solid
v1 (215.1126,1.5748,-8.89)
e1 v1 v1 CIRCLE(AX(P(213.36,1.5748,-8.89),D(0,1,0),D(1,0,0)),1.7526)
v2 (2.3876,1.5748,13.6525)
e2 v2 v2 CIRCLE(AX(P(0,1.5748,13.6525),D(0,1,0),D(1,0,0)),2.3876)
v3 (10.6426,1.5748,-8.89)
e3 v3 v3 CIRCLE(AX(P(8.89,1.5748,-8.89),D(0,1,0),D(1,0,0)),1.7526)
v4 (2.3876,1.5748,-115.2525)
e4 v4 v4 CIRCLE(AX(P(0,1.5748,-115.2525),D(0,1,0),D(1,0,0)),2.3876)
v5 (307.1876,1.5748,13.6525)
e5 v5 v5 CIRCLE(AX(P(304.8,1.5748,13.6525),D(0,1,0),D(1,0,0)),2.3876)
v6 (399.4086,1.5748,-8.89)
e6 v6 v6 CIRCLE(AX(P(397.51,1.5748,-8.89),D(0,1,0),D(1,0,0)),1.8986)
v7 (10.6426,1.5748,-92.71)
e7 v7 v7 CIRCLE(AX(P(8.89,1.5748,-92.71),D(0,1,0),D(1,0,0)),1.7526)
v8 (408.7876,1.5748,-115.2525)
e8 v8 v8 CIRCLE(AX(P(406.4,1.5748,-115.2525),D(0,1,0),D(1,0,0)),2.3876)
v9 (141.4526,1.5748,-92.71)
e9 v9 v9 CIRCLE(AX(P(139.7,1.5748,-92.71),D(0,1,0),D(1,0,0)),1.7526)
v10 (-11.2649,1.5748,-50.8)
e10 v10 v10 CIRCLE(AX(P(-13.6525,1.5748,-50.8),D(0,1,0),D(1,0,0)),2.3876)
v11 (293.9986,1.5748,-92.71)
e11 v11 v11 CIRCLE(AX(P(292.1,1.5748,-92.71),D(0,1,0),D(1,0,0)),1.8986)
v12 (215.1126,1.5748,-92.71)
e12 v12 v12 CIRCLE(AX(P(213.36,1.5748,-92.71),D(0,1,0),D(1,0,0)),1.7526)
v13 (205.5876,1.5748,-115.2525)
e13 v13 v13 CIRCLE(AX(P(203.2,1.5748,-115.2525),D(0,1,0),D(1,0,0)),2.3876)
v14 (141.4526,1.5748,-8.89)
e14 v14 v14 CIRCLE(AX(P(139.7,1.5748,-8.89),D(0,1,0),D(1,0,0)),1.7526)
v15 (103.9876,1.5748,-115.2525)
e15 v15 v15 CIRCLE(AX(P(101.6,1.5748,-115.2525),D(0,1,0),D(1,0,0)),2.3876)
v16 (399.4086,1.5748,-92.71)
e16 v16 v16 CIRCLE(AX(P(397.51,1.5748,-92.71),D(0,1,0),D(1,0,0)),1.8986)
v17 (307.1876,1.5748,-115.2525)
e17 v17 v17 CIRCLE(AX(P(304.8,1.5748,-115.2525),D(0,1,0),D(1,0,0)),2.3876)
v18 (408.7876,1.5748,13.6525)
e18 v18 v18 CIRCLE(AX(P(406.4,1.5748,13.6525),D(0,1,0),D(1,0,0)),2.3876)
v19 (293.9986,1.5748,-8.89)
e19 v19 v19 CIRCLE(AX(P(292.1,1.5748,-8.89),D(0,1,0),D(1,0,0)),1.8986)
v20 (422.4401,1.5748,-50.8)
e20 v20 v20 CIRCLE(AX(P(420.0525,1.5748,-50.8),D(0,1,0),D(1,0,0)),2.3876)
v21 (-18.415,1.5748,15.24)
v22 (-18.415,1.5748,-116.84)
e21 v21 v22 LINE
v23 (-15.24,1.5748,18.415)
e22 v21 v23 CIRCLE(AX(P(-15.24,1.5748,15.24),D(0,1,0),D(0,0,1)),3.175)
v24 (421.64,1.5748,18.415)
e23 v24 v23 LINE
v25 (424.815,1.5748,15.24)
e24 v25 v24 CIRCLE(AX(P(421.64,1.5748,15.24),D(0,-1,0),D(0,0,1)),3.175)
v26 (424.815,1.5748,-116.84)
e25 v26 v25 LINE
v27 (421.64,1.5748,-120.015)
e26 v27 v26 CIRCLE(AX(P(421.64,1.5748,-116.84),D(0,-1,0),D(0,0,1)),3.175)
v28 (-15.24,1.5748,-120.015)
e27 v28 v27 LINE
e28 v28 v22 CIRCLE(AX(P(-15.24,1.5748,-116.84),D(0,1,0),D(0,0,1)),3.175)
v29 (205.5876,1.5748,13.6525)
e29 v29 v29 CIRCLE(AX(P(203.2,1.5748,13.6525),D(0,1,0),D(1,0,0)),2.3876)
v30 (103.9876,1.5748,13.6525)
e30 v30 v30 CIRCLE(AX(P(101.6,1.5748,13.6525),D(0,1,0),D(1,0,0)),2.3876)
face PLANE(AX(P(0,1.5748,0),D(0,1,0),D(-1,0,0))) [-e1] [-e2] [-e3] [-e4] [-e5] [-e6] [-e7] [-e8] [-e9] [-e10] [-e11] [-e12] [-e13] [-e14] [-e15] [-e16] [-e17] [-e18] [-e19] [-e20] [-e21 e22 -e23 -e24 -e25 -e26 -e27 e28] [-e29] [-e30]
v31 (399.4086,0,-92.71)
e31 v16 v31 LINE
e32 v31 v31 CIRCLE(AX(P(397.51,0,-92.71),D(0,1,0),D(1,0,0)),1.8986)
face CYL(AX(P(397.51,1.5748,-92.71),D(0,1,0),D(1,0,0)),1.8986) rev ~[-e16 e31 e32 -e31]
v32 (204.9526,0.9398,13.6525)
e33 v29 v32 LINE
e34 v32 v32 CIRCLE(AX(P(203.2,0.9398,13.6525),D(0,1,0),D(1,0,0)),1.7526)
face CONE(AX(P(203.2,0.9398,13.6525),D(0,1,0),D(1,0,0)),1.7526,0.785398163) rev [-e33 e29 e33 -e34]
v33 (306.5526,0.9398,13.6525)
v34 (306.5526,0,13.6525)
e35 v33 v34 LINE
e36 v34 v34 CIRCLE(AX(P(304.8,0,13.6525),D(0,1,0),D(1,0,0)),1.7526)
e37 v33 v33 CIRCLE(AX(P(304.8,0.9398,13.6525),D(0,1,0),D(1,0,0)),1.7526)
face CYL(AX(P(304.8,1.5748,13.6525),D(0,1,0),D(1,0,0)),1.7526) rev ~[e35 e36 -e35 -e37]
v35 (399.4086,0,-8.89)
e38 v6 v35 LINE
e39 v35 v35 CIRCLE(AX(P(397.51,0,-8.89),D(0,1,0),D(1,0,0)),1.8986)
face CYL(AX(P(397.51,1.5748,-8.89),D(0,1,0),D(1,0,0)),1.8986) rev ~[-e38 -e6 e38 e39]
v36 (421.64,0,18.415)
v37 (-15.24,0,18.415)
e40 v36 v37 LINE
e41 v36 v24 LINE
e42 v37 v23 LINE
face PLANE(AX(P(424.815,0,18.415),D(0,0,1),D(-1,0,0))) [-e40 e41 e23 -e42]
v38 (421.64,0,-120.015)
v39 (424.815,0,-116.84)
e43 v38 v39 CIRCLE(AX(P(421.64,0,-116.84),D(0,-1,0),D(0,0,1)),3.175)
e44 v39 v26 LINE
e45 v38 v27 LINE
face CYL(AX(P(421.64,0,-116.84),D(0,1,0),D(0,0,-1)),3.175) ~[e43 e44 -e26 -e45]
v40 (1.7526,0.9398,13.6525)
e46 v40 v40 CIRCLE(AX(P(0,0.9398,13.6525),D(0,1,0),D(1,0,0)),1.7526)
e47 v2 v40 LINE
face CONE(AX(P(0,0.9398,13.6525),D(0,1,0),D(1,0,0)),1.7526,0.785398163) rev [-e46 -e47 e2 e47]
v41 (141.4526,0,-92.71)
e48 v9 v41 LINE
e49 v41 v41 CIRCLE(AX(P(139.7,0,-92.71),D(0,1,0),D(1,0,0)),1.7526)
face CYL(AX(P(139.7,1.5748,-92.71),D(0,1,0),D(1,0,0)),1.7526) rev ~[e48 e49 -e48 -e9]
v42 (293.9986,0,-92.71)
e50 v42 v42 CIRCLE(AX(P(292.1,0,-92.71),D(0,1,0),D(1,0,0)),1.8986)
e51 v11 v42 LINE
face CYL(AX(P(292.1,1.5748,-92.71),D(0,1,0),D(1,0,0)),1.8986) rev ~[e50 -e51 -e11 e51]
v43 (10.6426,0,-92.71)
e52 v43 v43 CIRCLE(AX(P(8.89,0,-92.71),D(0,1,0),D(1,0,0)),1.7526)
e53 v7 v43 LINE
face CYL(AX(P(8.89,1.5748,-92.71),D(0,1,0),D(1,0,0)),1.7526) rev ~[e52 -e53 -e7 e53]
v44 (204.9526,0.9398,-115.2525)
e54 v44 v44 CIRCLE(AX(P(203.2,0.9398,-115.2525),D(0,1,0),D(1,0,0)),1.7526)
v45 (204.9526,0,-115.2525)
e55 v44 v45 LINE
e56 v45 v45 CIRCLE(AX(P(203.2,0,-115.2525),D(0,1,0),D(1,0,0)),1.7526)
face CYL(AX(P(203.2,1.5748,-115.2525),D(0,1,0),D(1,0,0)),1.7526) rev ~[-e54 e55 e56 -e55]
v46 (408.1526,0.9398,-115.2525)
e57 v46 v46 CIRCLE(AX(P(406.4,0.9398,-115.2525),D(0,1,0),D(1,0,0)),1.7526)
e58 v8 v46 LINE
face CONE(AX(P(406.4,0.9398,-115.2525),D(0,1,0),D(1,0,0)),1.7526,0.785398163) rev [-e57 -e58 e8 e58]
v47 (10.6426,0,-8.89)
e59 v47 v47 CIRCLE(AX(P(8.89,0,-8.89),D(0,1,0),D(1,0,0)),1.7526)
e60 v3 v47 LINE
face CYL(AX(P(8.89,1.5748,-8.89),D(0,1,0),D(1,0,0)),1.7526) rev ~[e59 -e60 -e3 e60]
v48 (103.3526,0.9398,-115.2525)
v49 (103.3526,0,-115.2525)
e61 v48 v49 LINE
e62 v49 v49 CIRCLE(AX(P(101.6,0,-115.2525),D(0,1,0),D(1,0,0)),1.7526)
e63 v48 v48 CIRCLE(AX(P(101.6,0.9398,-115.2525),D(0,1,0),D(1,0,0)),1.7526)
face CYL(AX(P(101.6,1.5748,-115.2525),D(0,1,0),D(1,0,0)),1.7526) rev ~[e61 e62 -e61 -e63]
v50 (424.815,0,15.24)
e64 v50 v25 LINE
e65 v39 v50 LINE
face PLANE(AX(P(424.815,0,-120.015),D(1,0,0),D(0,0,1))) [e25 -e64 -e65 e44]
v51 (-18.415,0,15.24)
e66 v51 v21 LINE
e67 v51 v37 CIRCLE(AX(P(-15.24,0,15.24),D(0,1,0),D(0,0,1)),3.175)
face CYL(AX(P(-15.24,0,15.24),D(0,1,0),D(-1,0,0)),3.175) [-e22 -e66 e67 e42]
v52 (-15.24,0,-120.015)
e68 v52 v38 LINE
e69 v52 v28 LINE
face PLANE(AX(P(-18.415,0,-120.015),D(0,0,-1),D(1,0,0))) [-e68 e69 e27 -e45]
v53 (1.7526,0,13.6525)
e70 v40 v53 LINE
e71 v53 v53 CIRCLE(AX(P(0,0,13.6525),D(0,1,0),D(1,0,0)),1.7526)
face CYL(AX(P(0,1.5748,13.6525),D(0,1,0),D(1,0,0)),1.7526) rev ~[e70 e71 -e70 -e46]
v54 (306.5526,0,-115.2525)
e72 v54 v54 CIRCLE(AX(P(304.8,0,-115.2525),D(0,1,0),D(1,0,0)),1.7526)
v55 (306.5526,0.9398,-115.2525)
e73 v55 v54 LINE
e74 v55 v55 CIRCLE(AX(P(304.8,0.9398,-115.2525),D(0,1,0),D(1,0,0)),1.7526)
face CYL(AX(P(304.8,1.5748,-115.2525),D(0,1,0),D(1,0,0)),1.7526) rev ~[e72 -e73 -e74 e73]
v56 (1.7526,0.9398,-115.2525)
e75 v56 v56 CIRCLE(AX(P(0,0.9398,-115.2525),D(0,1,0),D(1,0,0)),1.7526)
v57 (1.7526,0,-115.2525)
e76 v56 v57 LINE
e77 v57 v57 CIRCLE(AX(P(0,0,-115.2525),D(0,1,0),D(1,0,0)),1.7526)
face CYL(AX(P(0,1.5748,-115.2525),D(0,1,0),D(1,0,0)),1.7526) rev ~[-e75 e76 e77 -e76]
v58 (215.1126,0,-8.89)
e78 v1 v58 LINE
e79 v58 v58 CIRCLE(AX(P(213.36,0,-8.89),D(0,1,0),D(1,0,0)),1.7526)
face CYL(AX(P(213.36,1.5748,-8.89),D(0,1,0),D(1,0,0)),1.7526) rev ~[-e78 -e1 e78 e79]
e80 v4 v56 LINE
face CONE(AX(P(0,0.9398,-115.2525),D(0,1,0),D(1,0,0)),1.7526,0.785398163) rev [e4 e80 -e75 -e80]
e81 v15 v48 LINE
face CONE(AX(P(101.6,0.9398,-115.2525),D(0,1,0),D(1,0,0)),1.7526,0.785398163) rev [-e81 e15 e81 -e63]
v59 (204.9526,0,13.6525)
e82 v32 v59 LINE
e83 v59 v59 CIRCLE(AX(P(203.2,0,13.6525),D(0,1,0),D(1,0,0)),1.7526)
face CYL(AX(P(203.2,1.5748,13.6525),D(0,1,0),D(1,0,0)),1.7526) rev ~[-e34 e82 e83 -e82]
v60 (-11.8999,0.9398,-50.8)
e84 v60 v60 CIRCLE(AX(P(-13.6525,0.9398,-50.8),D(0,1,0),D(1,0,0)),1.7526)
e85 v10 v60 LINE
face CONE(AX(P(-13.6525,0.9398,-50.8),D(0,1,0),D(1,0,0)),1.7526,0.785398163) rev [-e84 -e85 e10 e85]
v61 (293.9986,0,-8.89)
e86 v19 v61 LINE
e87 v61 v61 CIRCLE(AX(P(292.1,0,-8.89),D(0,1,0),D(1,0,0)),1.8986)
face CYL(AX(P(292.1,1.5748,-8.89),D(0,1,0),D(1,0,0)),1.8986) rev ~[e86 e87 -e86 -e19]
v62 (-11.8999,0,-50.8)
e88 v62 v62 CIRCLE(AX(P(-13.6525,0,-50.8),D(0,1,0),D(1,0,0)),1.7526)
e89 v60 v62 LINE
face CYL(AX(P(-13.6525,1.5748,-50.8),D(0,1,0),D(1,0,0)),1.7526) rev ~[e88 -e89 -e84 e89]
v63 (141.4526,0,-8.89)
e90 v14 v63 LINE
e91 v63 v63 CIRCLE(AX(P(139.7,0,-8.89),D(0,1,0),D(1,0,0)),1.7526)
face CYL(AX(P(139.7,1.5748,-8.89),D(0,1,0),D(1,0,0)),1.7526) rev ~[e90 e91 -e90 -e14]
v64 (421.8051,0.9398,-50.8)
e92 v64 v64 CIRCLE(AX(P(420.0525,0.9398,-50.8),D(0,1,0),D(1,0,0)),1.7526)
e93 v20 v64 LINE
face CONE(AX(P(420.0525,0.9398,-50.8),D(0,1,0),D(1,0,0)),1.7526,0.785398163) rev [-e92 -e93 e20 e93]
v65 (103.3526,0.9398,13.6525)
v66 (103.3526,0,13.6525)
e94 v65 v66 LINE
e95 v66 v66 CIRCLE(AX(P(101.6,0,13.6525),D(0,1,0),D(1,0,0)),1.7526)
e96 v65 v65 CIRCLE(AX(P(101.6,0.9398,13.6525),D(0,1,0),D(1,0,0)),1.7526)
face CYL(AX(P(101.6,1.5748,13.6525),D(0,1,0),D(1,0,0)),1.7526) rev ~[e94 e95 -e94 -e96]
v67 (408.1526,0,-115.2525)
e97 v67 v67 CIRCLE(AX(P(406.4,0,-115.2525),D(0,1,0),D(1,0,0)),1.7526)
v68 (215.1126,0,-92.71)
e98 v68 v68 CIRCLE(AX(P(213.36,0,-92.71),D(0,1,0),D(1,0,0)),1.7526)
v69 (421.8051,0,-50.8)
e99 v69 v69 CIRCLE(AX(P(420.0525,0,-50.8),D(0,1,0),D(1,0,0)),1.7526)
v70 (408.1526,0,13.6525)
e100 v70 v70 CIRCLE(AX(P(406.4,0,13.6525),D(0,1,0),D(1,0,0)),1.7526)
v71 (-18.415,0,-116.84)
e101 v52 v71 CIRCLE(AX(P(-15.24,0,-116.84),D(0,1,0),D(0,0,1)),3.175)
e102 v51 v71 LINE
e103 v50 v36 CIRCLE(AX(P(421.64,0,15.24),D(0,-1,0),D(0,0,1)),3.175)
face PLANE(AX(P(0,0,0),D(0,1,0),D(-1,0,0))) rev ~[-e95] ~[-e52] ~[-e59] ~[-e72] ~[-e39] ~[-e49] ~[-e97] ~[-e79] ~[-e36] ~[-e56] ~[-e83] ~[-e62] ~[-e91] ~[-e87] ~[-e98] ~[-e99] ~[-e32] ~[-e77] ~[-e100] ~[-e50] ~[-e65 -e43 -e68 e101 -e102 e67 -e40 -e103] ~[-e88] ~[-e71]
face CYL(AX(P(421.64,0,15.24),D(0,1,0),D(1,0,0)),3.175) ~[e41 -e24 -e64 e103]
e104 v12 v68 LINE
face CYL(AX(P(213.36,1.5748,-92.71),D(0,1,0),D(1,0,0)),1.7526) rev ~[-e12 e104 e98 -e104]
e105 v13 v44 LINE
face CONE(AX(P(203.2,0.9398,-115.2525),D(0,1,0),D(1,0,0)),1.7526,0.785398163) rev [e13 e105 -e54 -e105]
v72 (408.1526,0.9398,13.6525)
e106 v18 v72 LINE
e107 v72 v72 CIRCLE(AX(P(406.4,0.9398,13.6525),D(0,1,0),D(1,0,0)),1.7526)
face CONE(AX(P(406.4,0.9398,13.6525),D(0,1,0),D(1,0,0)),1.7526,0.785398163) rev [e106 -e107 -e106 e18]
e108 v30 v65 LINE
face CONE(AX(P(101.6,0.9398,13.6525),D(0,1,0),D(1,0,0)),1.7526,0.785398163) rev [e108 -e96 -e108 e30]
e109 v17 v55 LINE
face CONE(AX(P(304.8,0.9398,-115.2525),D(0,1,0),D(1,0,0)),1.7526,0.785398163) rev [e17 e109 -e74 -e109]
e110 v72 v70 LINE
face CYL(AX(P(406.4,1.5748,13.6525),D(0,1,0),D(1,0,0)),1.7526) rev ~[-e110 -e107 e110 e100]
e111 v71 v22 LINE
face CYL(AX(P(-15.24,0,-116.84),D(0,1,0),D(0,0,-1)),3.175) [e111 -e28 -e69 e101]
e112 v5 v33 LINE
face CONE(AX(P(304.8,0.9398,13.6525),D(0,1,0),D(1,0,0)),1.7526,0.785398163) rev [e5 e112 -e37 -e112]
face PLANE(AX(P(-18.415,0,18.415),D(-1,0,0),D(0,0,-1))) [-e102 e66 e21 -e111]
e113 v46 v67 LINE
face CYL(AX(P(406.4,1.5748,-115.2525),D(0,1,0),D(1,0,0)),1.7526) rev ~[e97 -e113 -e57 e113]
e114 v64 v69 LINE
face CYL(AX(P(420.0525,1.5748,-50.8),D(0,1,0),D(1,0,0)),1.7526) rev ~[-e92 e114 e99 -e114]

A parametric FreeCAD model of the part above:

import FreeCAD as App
import Part
import Sketcher

V = App.Vector
Q = App.Units.Quantity


def edges_at(feature, points):
    """Names of the edges that pass closest to the given points."""
    edges = feature.Shape.Edges
    near = lambda p: min(range(len(edges)), key=lambda i: edges[i].distToShape(Part.Vertex(*p))[0])
    return sorted({f"Edge{near(p) + 1}" for p in points})

doc = App.newDocument("Part")
body = doc.addObject("PartDesign::Body", "Body")

# Sketch on XZ plane
sketch1 = body.newObject("Sketcher::SketchObject", "Sketch")
sketch1.AttachmentSupport = (doc.getObject("XZ_Plane"), [""])
sketch1.MapMode = "FlatFace"
sketch1.addGeometry([
    Part.LineSegment(V(424.815, -120.015, 0), V(-18.415, -120.015, 0)),
    Part.LineSegment(V(-18.415, -120.015, 0), V(-18.415, 18.415, 0)),
    Part.LineSegment(V(-18.415, 18.415, 0), V(424.815, 18.415, 0)),
    Part.LineSegment(V(424.815, 18.415, 0), V(424.815, -120.015, 0)),
], False)
sketch1.addConstraint([
    Sketcher.Constraint("Coincident", 0, 2, 1, 1),
    Sketcher.Constraint("Coincident", 1, 2, 2, 1),
    Sketcher.Constraint("Coincident", 2, 2, 3, 1),
    Sketcher.Constraint("Coincident", 3, 2, 0, 1),
    Sketcher.Constraint("Horizontal", 0),
    Sketcher.Constraint("Vertical", 1),
    Sketcher.Constraint("Horizontal", 2),
    Sketcher.Constraint("Vertical", 3),
    Sketcher.Constraint("DistanceX", 0, 2, 0, 1, Q("17.45 in")),
    Sketcher.Constraint("DistanceY", 1, 1, 1, 2, Q("5.45 in")),
    Sketcher.Constraint("DistanceX", 0, 2, -1, 1, Q("0.725 in")),
    Sketcher.Constraint("DistanceY", 0, 2, -1, 1, Q("4.725 in")),
])
pad1 = body.newObject("PartDesign::Pad", "Pad")
pad1.Profile = sketch1
pad1.Length = Q("0.062 in")
pad1.Reversed = True

# Sketch on XZ plane
sketch2 = body.newObject("Sketcher::SketchObject", "Sketch001")
sketch2.AttachmentSupport = (doc.getObject("XZ_Plane"), [""])
sketch2.MapMode = "FlatFace"
sketch2.AttachmentOffset = App.Placement(V(0, 0, -0.062 * 25.4), App.Rotation())
sketch2.addGeometry([
    Part.Circle(V(8.89, -8.89, 0), V(0, 0, 1), 1.7526),  # 0
    Part.Circle(V(8.89, -92.71, 0), V(0, 0, 1), 1.7526),  # 1
    Part.Circle(V(139.7, -8.89, 0), V(0, 0, 1), 1.7526),  # 2
    Part.Circle(V(139.7, -92.71, 0), V(0, 0, 1), 1.7526),  # 3
    Part.Circle(V(213.36, -92.71, 0), V(0, 0, 1), 1.7526),  # 4
    Part.Circle(V(213.36, -8.89, 0), V(0, 0, 1), 1.7526),  # 5
    Part.Circle(V(292.1, -8.89, 0), V(0, 0, 1), 1.8986),  # 6
    Part.Circle(V(292.1, -92.71, 0), V(0, 0, 1), 1.8986),  # 7
    Part.Circle(V(397.51, -92.71, 0), V(0, 0, 1), 1.8986),  # 8
    Part.Circle(V(397.51, -8.89, 0), V(0, 0, 1), 1.8986),  # 9
], False)
sketch2.addConstraint([
    Sketcher.Constraint("Equal", 0, 1),
    Sketcher.Constraint("Equal", 1, 2),
    Sketcher.Constraint("Equal", 2, 3),
    Sketcher.Constraint("Equal", 3, 4),
    Sketcher.Constraint("Equal", 4, 5),
    Sketcher.Constraint("Equal", 6, 7),
    Sketcher.Constraint("Equal", 7, 8),
    Sketcher.Constraint("Equal", 8, 9),
    Sketcher.Constraint("Horizontal", 0, 3, 2, 3),
    Sketcher.Constraint("Horizontal", 1, 3, 3, 3),
    Sketcher.Constraint("Horizontal", 3, 3, 4, 3),
    Sketcher.Constraint("Horizontal", 2, 3, 5, 3),
    Sketcher.Constraint("Horizontal", 5, 3, 6, 3),
    Sketcher.Constraint("Horizontal", 4, 3, 7, 3),
    Sketcher.Constraint("Horizontal", 7, 3, 8, 3),
    Sketcher.Constraint("Horizontal", 6, 3, 9, 3),
    Sketcher.Constraint("Vertical", 0, 3, 1, 3),
    Sketcher.Constraint("Vertical", 2, 3, 3, 3),
    Sketcher.Constraint("Vertical", 4, 3, 5, 3),
    Sketcher.Constraint("Vertical", 6, 3, 7, 3),
    Sketcher.Constraint("Vertical", 8, 3, 9, 3),
    Sketcher.Constraint("Diameter", 0, Q("0.138 in")),
    Sketcher.Constraint("DistanceX", 2, 3, 6, 3, Q("6 in")),
    Sketcher.Constraint("Diameter", 6, Q("0.1495 in")),
    Sketcher.Constraint("DistanceX", -1, 1, 2, 3, Q("5.5 in")),
    Sketcher.Constraint("DistanceX", -1, 1, 4, 3, Q("8.4 in")),
    Sketcher.Constraint("DistanceY", 1, 3, 0, 3, Q("3.3 in")),
    Sketcher.Constraint("DistanceX", -1, 1, 0, 3, Q("0.35 in")),
    Sketcher.Constraint("DistanceY", 0, 3, -1, 1, Q("0.35 in")),
    Sketcher.Constraint("DistanceX", -1, 1, 8, 3, Q("15.65 in")),
])
pocket1 = body.newObject("PartDesign::Pocket", "Pocket")
pocket1.Profile = sketch2
pocket1.Length = Q("0.062 in")
pocket1.Reversed = True

# Sketch on XZ plane
sketch3 = body.newObject("Sketcher::SketchObject", "Sketch002")
sketch3.AttachmentSupport = (doc.getObject("XZ_Plane"), [""])
sketch3.MapMode = "FlatFace"
sketch3.AttachmentOffset = App.Placement(V(0, 0, -0.062 * 25.4), App.Rotation())
sketch3.addGeometry([
    Part.Circle(V(-13.6525, -50.8, 0), V(0, 0, 1), 1.7526),  # 0
    Part.Circle(V(420.0525, -50.8, 0), V(0, 0, 1), 1.7526),  # 1
    Part.Circle(V(0, 13.6525, 0), V(0, 0, 1), 1.7526),  # 2
    Part.Circle(V(101.6, 13.6525, 0), V(0, 0, 1), 1.7526),  # 3
    Part.Circle(V(203.2, 13.6525, 0), V(0, 0, 1), 1.7526),  # 4
    Part.Circle(V(304.8, 13.6525, 0), V(0, 0, 1), 1.7526),  # 5
    Part.Circle(V(406.4, 13.6525, 0), V(0, 0, 1), 1.7526),  # 6
    Part.Circle(V(0, -115.2525, 0), V(0, 0, 1), 1.7526),  # 7
    Part.Circle(V(101.6, -115.2525, 0), V(0, 0, 1), 1.7526),  # 8
    Part.Circle(V(203.2, -115.2525, 0), V(0, 0, 1), 1.7526),  # 9
    Part.Circle(V(304.8, -115.2525, 0), V(0, 0, 1), 1.7526),  # 10
    Part.Circle(V(406.4, -115.2525, 0), V(0, 0, 1), 1.7526),  # 11
], False)
sketch3.addConstraint([
    Sketcher.Constraint("Equal", 0, 1),
    Sketcher.Constraint("Equal", 1, 2),
    Sketcher.Constraint("Equal", 2, 3),
    Sketcher.Constraint("Equal", 3, 4),
    Sketcher.Constraint("Equal", 4, 5),
    Sketcher.Constraint("Equal", 5, 6),
    Sketcher.Constraint("Equal", 6, 7),
    Sketcher.Constraint("Equal", 7, 8),
    Sketcher.Constraint("Equal", 8, 9),
    Sketcher.Constraint("Equal", 9, 10),
    Sketcher.Constraint("Equal", 10, 11),
    Sketcher.Constraint("PointOnObject", 2, 3, -2),
    Sketcher.Constraint("PointOnObject", 7, 3, -2),
    Sketcher.Constraint("Horizontal", 0, 3, 1, 3),
    Sketcher.Constraint("Horizontal", 2, 3, 3, 3),
    Sketcher.Constraint("Horizontal", 3, 3, 4, 3),
    Sketcher.Constraint("Horizontal", 4, 3, 5, 3),
    Sketcher.Constraint("Horizontal", 5, 3, 6, 3),
    Sketcher.Constraint("Horizontal", 7, 3, 8, 3),
    Sketcher.Constraint("Horizontal", 8, 3, 9, 3),
    Sketcher.Constraint("Horizontal", 9, 3, 10, 3),
    Sketcher.Constraint("Horizontal", 10, 3, 11, 3),
    Sketcher.Constraint("Vertical", 3, 3, 8, 3),
    Sketcher.Constraint("Vertical", 4, 3, 9, 3),
    Sketcher.Constraint("Vertical", 5, 3, 10, 3),
    Sketcher.Constraint("Vertical", 6, 3, 11, 3),
    Sketcher.Constraint("DistanceX", -1, 1, 3, 3, Q("4 in")),
    Sketcher.Constraint("DistanceX", 3, 3, 4, 3, Q("4 in")),
    Sketcher.Constraint("DistanceX", 4, 3, 5, 3, Q("4 in")),
    Sketcher.Constraint("DistanceX", 5, 3, 6, 3, Q("4 in")),
    Sketcher.Constraint("Diameter", 0, Q("0.138 in")),
    Sketcher.Constraint("DistanceY", 0, 3, -1, 1, Q("2 in")),
    Sketcher.Constraint("DistanceX", 0, 3, 1, 3, Q("17.075 in")),
    Sketcher.Constraint("DistanceY", 7, 3, 2, 3, Q("5.075 in")),
    Sketcher.Constraint("DistanceX", 0, 3, -1, 1, Q("0.5375 in")),
    Sketcher.Constraint("DistanceY", -1, 1, 2, 3, Q("0.5375 in")),
])
pocket2 = body.newObject("PartDesign::Pocket", "Pocket001")
pocket2.Profile = sketch3
pocket2.Length = Q("0.062 in")
pocket2.Reversed = True
doc.recompute()

chamfer = body.newObject("PartDesign::Chamfer", "Chamfer")
chamfer.Base = (pocket2, edges_at(pocket2, [
    (-1.753, 1.575, 13.652),
    (-15.405, 1.575, -50.8),
    (-1.753, 1.575, -115.252),
    (99.847, 1.575, -115.252),
    (99.847, 1.575, 13.652),
    (201.447, 1.575, 13.652),
    (201.447, 1.575, -115.252),
    (303.047, 1.575, -115.252),
    (404.647, 1.575, -115.252),
    (418.3, 1.575, -50.8),
    (404.647, 1.575, 13.652),
    (303.047, 1.575, 13.652),
]))
chamfer.Size = Q("0.025 in")
doc.recompute()

fillet = body.newObject("PartDesign::Fillet", "Fillet")
fillet.Base = (chamfer, edges_at(chamfer, [
    (424.815, 0.787, 18.415),
    (424.815, 0.787, -120.015),
    (-18.415, 0.787, -120.015),
    (-18.415, 0.787, 18.415),
]))
fillet.Radius = Q("0.125 in")

doc.recompute()
